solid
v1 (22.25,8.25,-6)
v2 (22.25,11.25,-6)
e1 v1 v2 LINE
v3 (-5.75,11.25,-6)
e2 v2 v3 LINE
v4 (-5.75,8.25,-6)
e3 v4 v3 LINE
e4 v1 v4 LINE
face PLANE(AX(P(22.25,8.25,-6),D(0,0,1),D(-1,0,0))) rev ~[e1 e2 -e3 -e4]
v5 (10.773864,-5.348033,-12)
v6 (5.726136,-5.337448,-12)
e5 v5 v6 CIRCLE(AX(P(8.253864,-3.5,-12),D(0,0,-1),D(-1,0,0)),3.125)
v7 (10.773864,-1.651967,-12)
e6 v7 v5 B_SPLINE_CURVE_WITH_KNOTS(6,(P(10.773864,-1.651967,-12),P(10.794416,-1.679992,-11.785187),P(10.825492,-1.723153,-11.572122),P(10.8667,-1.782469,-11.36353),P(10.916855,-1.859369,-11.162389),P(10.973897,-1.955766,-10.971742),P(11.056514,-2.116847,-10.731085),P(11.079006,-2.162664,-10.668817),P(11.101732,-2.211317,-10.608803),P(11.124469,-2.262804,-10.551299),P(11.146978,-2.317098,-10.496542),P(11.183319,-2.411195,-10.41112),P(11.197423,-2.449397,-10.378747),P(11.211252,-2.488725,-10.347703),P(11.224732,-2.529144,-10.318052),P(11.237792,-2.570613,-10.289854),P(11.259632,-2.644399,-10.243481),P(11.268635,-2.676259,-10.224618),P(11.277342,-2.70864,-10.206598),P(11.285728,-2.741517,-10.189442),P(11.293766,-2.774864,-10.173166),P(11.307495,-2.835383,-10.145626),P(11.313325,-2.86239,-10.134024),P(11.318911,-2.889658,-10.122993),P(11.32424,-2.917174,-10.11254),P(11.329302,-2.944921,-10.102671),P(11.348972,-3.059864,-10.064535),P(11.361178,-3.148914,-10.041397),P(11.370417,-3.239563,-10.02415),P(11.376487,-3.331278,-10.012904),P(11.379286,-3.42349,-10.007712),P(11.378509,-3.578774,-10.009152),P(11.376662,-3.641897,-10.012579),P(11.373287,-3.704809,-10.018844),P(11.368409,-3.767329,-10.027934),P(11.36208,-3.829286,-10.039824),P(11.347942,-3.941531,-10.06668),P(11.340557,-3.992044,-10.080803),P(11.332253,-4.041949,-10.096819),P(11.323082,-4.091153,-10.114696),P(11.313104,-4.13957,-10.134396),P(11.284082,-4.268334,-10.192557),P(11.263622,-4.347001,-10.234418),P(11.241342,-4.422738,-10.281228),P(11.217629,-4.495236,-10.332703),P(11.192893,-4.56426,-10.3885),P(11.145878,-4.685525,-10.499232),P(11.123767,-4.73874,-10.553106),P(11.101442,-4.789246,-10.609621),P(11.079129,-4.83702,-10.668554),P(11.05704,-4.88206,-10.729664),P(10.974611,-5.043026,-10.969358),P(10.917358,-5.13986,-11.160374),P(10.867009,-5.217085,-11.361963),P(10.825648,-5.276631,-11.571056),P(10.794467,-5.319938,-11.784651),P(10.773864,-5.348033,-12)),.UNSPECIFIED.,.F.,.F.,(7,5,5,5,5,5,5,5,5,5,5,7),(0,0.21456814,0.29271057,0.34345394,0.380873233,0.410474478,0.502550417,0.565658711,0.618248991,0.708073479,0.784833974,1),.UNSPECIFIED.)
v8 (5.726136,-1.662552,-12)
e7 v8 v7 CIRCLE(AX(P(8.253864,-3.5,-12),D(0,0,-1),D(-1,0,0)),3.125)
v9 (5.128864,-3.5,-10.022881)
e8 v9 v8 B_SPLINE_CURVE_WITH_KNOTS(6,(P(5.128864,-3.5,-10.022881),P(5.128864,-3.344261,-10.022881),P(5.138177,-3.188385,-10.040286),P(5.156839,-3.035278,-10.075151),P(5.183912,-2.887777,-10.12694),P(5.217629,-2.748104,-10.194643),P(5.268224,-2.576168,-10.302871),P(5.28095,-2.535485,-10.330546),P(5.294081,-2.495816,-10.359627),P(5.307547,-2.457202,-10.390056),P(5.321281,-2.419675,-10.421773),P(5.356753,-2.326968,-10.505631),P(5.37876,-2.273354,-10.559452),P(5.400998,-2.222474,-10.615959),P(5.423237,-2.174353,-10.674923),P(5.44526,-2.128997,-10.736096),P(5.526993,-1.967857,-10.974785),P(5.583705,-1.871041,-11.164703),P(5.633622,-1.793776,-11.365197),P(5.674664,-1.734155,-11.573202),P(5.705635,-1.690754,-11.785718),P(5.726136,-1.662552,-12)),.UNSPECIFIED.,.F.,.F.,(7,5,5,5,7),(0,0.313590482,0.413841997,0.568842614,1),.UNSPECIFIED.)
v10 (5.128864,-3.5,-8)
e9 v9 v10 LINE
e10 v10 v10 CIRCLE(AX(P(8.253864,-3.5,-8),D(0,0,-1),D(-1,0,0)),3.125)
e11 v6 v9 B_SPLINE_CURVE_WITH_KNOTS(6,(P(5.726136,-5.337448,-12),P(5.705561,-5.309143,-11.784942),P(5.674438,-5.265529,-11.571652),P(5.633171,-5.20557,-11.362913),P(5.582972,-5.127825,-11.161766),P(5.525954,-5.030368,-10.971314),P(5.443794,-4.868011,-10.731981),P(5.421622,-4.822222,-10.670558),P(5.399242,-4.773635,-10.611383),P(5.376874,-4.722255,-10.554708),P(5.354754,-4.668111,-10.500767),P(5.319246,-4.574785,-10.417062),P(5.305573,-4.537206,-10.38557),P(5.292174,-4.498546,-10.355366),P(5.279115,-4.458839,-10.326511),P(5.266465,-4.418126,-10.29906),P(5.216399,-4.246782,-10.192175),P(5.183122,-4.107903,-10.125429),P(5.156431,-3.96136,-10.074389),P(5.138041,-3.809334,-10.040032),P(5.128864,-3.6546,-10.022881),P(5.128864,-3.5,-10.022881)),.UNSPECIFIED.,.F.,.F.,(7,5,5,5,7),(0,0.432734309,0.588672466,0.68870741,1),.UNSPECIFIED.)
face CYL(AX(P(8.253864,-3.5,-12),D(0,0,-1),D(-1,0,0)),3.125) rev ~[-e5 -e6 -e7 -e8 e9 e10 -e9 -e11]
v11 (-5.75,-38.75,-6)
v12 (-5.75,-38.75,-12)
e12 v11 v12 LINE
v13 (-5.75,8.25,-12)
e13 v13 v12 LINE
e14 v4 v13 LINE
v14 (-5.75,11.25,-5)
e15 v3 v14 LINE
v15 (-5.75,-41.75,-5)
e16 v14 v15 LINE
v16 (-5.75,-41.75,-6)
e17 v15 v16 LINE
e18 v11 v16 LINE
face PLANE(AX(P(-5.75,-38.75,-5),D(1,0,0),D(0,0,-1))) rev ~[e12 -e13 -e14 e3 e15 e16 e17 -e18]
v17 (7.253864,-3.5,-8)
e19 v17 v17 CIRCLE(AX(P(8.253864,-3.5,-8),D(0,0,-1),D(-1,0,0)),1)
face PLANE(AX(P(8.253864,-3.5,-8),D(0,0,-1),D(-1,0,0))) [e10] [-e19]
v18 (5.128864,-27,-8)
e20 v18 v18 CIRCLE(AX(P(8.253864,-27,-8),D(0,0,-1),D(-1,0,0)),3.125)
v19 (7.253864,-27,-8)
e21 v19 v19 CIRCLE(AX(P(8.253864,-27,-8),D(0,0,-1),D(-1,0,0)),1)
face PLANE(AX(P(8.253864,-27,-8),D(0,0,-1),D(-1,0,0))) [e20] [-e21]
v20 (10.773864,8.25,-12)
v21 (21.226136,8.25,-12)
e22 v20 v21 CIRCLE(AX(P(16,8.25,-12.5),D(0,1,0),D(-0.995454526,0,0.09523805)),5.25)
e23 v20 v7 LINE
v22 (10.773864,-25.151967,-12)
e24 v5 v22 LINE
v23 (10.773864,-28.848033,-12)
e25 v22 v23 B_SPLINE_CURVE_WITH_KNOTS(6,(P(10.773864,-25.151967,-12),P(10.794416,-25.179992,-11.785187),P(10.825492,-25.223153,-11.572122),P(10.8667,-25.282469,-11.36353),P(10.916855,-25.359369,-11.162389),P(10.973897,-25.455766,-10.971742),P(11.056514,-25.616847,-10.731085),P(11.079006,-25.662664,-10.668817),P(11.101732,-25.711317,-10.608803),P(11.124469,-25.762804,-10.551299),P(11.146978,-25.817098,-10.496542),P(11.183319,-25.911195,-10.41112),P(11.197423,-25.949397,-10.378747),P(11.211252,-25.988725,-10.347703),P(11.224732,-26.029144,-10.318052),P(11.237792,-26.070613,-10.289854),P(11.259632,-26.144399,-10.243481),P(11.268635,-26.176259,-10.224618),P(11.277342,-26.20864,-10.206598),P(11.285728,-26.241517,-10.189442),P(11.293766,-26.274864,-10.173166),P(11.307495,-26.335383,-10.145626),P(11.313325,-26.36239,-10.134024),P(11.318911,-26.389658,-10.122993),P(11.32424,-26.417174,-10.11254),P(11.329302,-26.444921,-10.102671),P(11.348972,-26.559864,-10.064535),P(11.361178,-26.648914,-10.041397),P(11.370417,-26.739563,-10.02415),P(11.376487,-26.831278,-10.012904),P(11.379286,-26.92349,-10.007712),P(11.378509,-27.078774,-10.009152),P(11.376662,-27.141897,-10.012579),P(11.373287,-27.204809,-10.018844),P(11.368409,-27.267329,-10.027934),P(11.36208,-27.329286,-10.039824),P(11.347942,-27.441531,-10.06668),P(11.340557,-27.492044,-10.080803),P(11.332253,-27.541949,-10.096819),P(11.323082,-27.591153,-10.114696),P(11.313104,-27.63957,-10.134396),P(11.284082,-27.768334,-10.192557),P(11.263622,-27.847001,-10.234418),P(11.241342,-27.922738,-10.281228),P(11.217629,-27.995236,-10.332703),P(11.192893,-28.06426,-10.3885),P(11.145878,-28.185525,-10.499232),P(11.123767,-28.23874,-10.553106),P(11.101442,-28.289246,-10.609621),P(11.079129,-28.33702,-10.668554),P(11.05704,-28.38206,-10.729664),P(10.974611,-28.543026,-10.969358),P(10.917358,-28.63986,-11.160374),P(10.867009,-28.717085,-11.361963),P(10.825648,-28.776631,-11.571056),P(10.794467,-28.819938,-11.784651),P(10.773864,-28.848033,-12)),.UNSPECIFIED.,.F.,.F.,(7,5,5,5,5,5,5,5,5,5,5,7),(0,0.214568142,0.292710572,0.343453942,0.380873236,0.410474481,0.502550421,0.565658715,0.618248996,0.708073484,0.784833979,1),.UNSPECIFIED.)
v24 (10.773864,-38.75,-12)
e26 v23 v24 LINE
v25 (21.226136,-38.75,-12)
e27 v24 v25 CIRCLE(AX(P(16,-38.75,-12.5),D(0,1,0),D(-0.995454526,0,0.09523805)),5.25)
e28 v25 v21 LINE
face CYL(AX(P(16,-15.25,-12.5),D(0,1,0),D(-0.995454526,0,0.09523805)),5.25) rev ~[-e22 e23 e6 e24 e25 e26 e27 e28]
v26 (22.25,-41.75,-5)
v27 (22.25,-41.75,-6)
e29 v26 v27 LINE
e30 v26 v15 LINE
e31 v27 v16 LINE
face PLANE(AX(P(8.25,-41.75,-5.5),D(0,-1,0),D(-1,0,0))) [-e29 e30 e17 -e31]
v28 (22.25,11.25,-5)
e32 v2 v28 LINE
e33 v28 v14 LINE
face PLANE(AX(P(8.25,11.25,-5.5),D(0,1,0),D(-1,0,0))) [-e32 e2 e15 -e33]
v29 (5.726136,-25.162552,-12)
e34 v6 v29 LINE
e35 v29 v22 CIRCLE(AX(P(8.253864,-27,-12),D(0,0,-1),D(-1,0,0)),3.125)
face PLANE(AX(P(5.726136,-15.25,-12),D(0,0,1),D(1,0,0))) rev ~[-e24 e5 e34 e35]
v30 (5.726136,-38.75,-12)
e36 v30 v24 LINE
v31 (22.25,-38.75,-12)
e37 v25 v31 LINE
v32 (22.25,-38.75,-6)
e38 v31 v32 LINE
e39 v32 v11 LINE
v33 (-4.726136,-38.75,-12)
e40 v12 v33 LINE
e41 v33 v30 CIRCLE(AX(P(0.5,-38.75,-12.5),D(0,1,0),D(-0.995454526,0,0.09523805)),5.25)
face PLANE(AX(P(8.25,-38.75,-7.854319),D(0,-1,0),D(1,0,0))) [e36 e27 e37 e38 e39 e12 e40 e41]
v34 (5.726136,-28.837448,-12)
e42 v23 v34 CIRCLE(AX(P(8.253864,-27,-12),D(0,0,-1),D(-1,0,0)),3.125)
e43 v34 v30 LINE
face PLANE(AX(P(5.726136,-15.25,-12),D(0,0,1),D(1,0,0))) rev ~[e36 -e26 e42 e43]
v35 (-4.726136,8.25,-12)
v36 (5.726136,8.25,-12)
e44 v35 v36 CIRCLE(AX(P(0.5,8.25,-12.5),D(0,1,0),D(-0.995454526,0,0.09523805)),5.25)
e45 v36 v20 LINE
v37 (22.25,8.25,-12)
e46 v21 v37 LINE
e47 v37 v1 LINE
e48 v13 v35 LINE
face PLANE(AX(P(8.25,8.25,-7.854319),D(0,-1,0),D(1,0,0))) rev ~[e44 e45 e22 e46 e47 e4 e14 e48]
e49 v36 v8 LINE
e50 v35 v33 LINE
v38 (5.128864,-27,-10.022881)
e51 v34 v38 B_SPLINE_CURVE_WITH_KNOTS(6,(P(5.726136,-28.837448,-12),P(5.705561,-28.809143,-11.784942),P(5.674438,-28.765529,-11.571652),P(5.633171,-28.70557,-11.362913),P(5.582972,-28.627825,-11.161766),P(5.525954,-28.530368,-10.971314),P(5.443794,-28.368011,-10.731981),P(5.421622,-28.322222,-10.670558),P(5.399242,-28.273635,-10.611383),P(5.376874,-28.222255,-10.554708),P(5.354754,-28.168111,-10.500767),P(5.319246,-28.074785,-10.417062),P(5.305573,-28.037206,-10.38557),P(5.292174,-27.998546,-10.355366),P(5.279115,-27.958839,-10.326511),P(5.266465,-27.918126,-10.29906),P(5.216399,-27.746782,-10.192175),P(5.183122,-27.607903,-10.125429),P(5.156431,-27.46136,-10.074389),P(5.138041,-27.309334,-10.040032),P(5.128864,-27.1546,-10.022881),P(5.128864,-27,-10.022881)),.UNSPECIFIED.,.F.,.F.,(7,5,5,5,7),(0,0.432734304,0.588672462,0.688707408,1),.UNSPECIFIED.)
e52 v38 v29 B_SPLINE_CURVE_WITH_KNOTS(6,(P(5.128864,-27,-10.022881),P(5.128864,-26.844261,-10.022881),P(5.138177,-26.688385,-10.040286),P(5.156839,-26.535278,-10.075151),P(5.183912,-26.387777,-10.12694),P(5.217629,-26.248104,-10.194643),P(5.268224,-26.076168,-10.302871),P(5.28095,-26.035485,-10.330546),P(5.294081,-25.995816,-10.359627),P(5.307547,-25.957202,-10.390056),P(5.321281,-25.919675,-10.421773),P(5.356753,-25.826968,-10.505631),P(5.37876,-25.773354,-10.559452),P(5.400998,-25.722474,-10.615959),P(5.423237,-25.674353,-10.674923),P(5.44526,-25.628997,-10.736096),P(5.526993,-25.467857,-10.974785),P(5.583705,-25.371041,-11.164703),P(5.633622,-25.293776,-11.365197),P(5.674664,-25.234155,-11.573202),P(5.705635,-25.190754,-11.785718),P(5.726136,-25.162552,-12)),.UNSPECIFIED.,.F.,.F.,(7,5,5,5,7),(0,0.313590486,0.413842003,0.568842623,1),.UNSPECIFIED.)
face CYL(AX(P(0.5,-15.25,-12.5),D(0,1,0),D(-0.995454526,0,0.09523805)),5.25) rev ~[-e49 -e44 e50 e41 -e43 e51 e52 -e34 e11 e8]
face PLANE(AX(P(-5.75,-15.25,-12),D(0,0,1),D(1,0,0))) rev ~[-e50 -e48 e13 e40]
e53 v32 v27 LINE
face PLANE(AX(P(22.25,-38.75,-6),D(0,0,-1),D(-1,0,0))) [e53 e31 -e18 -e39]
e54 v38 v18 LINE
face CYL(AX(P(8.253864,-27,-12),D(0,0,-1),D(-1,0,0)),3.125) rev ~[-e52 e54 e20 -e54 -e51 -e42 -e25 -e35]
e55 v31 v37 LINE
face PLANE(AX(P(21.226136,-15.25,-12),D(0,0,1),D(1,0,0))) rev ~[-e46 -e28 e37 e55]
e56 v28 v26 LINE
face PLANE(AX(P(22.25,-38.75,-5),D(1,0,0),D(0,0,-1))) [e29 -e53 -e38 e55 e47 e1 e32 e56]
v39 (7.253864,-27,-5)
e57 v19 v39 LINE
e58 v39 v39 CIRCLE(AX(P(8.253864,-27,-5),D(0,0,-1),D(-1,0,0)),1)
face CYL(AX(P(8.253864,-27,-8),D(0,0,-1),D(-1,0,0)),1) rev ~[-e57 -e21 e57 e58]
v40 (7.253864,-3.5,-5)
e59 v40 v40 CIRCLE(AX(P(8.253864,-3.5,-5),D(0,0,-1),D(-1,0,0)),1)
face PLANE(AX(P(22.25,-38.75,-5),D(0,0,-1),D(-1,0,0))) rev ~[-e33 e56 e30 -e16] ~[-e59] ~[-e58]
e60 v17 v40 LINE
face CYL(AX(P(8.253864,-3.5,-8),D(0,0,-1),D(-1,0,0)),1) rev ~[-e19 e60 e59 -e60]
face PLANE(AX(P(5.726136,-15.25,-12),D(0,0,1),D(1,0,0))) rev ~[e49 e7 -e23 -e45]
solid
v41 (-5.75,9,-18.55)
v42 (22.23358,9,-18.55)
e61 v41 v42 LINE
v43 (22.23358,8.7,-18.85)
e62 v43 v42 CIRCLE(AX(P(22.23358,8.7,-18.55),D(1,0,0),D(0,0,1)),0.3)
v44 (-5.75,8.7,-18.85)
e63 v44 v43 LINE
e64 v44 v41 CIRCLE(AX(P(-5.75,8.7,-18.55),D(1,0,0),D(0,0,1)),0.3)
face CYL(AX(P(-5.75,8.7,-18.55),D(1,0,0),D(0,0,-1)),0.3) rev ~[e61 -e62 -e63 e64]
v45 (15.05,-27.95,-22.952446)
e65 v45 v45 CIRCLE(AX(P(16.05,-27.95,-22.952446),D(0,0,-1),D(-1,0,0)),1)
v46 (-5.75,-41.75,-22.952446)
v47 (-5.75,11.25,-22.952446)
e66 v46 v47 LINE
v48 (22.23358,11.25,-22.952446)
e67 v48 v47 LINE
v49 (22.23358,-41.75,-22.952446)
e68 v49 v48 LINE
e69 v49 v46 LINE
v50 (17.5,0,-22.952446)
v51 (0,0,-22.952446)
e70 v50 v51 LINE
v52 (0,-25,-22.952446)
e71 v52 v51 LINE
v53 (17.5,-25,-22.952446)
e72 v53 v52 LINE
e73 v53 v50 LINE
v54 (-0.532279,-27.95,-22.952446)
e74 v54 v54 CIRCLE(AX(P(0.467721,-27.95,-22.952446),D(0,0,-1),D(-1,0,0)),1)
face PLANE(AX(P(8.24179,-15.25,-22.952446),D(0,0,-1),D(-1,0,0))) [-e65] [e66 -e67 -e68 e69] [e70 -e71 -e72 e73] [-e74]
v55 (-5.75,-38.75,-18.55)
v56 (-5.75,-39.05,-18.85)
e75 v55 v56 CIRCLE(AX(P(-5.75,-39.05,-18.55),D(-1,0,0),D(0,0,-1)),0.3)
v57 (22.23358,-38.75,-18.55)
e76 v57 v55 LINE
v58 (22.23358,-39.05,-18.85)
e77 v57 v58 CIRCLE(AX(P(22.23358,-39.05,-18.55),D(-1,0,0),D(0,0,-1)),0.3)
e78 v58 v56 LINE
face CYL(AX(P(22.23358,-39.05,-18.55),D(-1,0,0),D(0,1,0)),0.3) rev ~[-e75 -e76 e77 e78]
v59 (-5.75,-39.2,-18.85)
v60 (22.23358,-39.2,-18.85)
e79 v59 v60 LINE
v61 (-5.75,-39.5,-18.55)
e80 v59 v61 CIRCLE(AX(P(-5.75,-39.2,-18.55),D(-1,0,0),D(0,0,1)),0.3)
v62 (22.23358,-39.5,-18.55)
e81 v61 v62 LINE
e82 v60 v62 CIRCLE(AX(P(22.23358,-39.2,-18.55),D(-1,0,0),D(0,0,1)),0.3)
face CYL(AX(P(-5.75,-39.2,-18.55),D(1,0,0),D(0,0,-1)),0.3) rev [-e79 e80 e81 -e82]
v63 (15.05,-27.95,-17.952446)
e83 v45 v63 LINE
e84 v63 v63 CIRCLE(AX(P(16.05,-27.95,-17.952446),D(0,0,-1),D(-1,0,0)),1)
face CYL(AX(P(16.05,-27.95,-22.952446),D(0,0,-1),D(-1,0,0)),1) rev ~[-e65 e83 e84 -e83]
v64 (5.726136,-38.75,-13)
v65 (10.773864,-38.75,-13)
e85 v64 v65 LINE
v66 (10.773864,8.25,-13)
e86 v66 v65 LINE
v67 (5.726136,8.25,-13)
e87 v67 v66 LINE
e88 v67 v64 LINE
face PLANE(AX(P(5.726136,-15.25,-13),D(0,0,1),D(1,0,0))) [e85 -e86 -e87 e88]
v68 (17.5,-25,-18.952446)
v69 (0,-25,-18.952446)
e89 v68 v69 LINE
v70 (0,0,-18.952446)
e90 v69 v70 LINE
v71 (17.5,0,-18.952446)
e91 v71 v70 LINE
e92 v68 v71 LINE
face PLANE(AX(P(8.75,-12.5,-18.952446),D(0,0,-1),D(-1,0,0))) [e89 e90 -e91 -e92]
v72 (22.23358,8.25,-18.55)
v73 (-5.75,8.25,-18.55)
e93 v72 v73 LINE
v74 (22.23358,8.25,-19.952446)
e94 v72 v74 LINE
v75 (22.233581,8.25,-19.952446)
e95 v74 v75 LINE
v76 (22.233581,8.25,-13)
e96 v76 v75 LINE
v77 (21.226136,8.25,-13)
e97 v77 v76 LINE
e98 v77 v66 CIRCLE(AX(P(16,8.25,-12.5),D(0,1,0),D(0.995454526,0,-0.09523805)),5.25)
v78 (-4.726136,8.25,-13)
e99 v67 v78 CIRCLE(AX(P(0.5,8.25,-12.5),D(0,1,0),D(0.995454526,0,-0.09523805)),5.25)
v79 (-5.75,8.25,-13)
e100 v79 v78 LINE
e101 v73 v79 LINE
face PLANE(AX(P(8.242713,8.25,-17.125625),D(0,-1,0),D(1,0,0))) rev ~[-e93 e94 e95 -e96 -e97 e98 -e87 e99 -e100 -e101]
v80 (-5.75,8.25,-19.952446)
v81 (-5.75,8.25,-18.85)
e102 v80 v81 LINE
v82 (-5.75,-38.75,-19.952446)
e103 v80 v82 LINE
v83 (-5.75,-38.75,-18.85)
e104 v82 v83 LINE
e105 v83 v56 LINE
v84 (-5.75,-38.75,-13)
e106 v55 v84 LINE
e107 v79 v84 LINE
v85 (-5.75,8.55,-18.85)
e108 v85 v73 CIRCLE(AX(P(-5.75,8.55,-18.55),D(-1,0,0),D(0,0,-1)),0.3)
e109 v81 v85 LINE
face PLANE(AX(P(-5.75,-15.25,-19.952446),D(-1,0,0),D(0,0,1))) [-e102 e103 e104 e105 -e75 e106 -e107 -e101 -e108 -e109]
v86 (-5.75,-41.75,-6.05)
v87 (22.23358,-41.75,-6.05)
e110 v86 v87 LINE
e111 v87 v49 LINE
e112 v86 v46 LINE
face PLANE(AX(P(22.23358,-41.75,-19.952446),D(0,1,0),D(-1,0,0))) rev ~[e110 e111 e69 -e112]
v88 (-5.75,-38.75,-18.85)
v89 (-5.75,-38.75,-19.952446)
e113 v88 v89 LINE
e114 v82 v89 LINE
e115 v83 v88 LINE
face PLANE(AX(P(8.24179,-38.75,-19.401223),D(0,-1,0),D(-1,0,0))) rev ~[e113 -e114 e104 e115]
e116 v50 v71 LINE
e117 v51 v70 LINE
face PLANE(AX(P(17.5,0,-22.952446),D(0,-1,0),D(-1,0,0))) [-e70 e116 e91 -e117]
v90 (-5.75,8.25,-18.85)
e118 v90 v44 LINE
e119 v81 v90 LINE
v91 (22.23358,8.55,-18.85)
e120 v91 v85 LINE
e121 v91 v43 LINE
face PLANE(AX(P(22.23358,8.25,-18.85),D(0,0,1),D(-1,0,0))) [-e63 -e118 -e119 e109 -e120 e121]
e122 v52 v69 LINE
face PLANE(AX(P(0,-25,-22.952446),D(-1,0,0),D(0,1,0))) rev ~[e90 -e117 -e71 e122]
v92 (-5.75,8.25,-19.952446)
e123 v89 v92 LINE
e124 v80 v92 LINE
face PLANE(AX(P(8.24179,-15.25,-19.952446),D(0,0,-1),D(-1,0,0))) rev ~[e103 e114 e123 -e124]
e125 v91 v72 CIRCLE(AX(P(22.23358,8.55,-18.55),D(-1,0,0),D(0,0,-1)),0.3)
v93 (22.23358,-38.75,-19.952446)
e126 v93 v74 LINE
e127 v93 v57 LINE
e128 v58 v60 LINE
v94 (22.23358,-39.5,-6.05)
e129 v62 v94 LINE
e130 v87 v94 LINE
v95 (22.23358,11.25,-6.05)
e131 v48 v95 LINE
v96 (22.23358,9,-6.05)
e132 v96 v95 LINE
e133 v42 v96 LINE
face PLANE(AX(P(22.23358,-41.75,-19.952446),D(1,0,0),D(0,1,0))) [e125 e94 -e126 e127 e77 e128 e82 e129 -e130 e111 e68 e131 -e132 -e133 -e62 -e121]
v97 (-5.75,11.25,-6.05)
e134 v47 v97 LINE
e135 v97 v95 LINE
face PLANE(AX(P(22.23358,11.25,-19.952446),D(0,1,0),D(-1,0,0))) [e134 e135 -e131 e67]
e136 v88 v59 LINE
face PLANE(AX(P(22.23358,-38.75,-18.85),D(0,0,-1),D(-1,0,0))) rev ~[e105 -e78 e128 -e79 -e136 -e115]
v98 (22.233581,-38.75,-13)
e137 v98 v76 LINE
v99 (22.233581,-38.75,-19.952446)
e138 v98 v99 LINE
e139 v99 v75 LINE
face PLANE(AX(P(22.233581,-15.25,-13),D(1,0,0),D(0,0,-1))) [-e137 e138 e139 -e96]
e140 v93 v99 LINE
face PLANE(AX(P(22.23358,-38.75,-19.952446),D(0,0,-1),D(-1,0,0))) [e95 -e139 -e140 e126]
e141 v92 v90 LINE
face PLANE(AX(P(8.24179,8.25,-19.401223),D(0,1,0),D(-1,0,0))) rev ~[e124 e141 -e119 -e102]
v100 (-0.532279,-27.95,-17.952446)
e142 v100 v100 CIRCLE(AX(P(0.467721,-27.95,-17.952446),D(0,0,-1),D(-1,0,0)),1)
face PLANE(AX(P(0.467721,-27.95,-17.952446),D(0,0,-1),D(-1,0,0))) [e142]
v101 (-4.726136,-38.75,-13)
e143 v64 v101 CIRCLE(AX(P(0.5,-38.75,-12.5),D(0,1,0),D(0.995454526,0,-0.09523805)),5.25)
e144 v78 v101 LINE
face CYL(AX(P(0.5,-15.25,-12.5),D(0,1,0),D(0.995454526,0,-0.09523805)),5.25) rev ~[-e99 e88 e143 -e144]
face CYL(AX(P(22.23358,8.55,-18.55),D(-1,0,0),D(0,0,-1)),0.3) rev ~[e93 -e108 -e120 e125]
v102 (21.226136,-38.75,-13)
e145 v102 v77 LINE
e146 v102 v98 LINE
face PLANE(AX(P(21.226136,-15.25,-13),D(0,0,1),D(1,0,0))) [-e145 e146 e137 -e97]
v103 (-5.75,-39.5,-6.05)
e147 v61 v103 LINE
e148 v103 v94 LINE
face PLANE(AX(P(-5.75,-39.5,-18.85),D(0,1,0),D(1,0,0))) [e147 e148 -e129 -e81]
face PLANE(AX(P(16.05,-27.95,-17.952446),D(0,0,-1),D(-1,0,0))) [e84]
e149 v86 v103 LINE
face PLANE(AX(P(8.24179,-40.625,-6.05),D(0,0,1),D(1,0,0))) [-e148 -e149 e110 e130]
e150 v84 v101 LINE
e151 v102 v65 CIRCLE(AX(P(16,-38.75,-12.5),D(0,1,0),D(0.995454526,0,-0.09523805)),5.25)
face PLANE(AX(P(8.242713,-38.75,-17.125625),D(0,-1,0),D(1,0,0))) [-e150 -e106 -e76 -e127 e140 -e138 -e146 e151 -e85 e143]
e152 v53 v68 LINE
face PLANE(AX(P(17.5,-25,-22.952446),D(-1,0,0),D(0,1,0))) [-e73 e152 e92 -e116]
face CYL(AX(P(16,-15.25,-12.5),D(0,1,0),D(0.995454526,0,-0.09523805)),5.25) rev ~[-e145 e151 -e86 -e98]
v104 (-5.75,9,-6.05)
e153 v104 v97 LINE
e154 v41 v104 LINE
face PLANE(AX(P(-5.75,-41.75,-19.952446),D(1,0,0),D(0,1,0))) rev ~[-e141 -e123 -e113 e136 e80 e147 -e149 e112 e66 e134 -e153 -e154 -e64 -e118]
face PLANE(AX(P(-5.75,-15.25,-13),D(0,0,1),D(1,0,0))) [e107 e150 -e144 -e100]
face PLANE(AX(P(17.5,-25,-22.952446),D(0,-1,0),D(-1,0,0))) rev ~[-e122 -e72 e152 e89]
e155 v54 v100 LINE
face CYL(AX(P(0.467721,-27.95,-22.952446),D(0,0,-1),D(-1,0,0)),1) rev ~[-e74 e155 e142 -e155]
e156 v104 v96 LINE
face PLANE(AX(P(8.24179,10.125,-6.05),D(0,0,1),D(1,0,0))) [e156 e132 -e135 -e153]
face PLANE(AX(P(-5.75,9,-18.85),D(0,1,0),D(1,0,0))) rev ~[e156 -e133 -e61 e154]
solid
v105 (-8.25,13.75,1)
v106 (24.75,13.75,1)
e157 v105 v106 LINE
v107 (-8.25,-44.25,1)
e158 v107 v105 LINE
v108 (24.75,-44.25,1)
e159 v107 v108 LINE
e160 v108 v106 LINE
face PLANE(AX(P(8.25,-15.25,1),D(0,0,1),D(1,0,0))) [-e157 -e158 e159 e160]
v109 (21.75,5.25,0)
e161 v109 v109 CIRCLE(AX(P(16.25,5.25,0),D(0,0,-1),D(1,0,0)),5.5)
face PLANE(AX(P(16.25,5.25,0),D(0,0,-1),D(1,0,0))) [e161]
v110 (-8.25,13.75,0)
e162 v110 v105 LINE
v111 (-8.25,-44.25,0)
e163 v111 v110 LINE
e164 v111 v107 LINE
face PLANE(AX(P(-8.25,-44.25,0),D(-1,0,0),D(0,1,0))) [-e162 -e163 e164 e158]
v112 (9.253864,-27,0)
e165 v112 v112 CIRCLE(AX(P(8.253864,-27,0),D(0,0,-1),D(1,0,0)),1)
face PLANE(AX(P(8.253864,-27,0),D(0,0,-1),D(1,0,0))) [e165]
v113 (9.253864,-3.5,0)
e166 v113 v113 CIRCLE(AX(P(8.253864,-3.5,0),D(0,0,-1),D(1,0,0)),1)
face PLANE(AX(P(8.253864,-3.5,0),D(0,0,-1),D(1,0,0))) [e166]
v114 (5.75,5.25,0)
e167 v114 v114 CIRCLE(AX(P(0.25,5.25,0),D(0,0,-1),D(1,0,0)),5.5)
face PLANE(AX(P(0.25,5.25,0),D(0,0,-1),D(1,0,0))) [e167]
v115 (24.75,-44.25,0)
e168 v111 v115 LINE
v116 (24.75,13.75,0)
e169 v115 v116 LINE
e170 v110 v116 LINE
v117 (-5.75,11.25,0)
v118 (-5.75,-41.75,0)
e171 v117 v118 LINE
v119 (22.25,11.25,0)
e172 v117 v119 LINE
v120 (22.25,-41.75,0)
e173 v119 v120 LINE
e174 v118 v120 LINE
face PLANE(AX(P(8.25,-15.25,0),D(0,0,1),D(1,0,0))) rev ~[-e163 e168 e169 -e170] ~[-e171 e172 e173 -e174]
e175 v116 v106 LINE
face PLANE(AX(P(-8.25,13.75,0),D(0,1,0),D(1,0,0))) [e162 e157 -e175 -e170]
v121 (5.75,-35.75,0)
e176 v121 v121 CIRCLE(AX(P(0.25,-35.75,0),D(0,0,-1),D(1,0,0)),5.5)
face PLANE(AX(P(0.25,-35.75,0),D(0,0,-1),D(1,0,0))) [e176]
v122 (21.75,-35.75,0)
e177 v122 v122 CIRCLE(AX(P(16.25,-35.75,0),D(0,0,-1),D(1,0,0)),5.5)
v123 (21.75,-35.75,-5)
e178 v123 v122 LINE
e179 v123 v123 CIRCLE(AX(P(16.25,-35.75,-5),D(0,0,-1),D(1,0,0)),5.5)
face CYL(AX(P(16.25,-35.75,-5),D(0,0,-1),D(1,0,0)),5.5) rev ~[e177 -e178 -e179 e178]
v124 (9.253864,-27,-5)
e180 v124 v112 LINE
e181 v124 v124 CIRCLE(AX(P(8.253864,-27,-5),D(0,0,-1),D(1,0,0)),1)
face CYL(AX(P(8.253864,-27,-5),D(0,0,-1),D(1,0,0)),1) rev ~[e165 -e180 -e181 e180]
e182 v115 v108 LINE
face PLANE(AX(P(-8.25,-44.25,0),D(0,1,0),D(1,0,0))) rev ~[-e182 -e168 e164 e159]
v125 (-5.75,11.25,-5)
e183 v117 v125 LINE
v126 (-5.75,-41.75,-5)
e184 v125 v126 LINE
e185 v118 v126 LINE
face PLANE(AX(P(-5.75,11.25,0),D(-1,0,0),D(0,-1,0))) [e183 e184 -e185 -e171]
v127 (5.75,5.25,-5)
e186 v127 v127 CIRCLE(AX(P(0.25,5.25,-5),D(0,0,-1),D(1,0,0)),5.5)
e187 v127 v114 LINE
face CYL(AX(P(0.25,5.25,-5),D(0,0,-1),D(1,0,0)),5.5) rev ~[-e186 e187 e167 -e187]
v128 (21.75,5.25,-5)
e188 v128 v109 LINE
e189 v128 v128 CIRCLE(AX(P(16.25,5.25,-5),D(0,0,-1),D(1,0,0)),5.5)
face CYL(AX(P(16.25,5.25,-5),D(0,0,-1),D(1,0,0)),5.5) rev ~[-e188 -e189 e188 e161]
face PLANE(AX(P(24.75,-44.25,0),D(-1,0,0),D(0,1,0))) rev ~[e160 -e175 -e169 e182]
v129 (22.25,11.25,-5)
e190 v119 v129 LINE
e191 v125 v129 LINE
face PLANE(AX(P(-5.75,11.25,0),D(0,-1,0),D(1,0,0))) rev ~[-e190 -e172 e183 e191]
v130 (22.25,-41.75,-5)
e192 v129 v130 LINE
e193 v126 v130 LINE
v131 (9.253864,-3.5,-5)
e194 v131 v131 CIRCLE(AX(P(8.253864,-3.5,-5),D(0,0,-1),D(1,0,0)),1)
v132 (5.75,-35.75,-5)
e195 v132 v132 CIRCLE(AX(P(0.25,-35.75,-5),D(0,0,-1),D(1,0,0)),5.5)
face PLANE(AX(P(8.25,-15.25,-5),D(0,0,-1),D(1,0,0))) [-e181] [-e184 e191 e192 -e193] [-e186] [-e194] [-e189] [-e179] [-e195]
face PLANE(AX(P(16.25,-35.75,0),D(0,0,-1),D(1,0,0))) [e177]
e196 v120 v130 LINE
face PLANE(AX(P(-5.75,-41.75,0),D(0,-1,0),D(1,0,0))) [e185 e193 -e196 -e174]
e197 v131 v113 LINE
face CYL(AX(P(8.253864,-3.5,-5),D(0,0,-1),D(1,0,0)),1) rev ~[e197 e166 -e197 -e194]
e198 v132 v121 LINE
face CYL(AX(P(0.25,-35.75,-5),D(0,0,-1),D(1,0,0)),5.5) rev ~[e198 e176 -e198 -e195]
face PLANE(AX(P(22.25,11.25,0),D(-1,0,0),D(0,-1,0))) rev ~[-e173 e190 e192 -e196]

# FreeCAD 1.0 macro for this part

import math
import FreeCAD as App
import Part
import Sketcher

V = App.Vector
Q = App.Units.Quantity


def edges_at(feature, points):
    """Names of the edges that pass closest to the given points."""
    edges = feature.Shape.Edges
    near = lambda p: min(range(len(edges)), key=lambda i: edges[i].distToShape(Part.Vertex(*p))[0])
    return sorted({f"Edge{near(p) + 1}" for p in points})


def add_polygon(sketch, points):
    """Adds a closed chain of lines whose ends are joined by coincident constraints."""
    first, n = sketch.GeometryCount, len(points)
    for a, b in zip(points, points[1:] + points[:1]):
        sketch.addGeometry(Part.LineSegment(App.Vector(*a, 0), App.Vector(*b, 0)), False)
    for i in range(n):
        sketch.addConstraint(Sketcher.Constraint("Coincident", first + i, 2, first + (i + 1) % n, 1))

doc = App.newDocument("Part")
body = doc.addObject("PartDesign::Body", "Body")

# Sketch on XY plane
sketch1 = body.newObject("Sketcher::SketchObject", "Sketch")
sketch1.AttachmentSupport = (doc.getObject("XY_Plane"), [""])
sketch1.MapMode = "FlatFace"
add_polygon(sketch1, [(-8.25, 13.75), (-8.25, -44.25), (24.75, -44.25), (24.75, 13.75)])  # lines 0-3
sketch1.addConstraint(Sketcher.Constraint("Vertical", 0))
sketch1.addConstraint(Sketcher.Constraint("Horizontal", 1))
sketch1.addConstraint(Sketcher.Constraint("Vertical", 2))
sketch1.addConstraint(Sketcher.Constraint("Horizontal", 3))
sketch1.addConstraint(Sketcher.Constraint("DistanceX", 1, 1, 1, 2, Q("33 mm")))
sketch1.addConstraint(Sketcher.Constraint("DistanceY", 0, 2, 0, 1, Q("58 mm")))
sketch1.addConstraint(Sketcher.Constraint("DistanceX", 0, 2, -1, 1, Q("8.25 mm")))
sketch1.addConstraint(Sketcher.Constraint("DistanceY", 0, 2, -1, 1, Q("44.25 mm")))
pad1 = body.newObject("PartDesign::Pad", "Pad")
pad1.Profile = sketch1
pad1.Length = 1

# Sketch on XY plane
sketch2 = body.newObject("Sketcher::SketchObject", "Sketch001")
sketch2.AttachmentSupport = (doc.getObject("XY_Plane"), [""])
sketch2.MapMode = "FlatFace"
add_polygon(sketch2, [(-5.75, -41.75), (-5.75, 11.25), (22.25, 11.25), (22.25, -41.75)])  # lines 0-3
sketch2.addConstraint(Sketcher.Constraint("Vertical", 0))
sketch2.addConstraint(Sketcher.Constraint("Horizontal", 1))
sketch2.addConstraint(Sketcher.Constraint("Vertical", 2))
sketch2.addConstraint(Sketcher.Constraint("Horizontal", 3))
sketch2.addConstraint(Sketcher.Constraint("DistanceX", 1, 1, 1, 2, Q("28 mm")))
sketch2.addConstraint(Sketcher.Constraint("DistanceY", 0, 1, 0, 2, Q("53 mm")))
sketch2.addConstraint(Sketcher.Constraint("DistanceX", 0, 2, -1, 1, Q("5.75 mm")))
sketch2.addConstraint(Sketcher.Constraint("DistanceY", -1, 1, 0, 2, Q("11.25 mm")))
pad2 = body.newObject("PartDesign::Pad", "Pad001")
pad2.Profile = sketch2
pad2.Length = 5
pad2.Reversed = True

# Sketch on XY plane
sketch3 = body.newObject("Sketcher::SketchObject", "Sketch002")
sketch3.AttachmentSupport = (doc.getObject("XY_Plane"), [""])
sketch3.MapMode = "FlatFace"
sketch3.AttachmentOffset = App.Placement(V(0, 0, -5), App.Rotation())
sketch3.addGeometry(Part.Circle(V(0.25, -35.75, 0), V(0, 0, 1), 5.5), False)
sketch3.addGeometry(Part.Circle(V(16.25, -35.75, 0), V(0, 0, 1), 5.5), False)
sketch3.addGeometry(Part.Circle(V(0.25, 5.25, 0), V(0, 0, 1), 5.5), False)
sketch3.addGeometry(Part.Circle(V(16.25, 5.25, 0), V(0, 0, 1), 5.5), False)
sketch3.addConstraint(Sketcher.Constraint("Equal", 0, 1))
sketch3.addConstraint(Sketcher.Constraint("Equal", 1, 2))
sketch3.addConstraint(Sketcher.Constraint("Equal", 2, 3))
sketch3.addConstraint(Sketcher.Constraint("Horizontal", 0, 3, 1, 3))
sketch3.addConstraint(Sketcher.Constraint("Horizontal", 2, 3, 3, 3))
sketch3.addConstraint(Sketcher.Constraint("Vertical", 0, 3, 2, 3))
sketch3.addConstraint(Sketcher.Constraint("Vertical", 1, 3, 3, 3))
sketch3.addConstraint(Sketcher.Constraint("Diameter", 0, Q("11 mm")))
sketch3.addConstraint(Sketcher.Constraint("DistanceX", 0, 3, 1, 3, Q("16 mm")))
sketch3.addConstraint(Sketcher.Constraint("DistanceY", 0, 3, 2, 3, Q("41 mm")))
sketch3.addConstraint(Sketcher.Constraint("DistanceX", -1, 1, 0, 3, Q("0.25 mm")))
sketch3.addConstraint(Sketcher.Constraint("DistanceY", 0, 3, -1, 1, Q("35.75 mm")))
pocket1 = body.newObject("PartDesign::Pocket", "Pocket")
pocket1.Profile = sketch3
pocket1.Length = 5
pocket1.Reversed = True

# Sketch on XY plane
sketch4 = body.newObject("Sketcher::SketchObject", "Sketch003")
sketch4.AttachmentSupport = (doc.getObject("XY_Plane"), [""])
sketch4.MapMode = "FlatFace"
sketch4.AttachmentOffset = App.Placement(V(0, 0, -5), App.Rotation())
sketch4.addGeometry(Part.Circle(V(8.253864, -3.5, 0), V(0, 0, 1), 1), False)
sketch4.addGeometry(Part.Circle(V(8.253864, -27, 0), V(0, 0, 1), 1), False)
sketch4.addConstraint(Sketcher.Constraint("Equal", 0, 1))
sketch4.addConstraint(Sketcher.Constraint("Vertical", 0, 3, 1, 3))
sketch4.addConstraint(Sketcher.Constraint("Diameter", 0, Q("2 mm")))
sketch4.addConstraint(Sketcher.Constraint("DistanceY", 1, 3, -1, 1, Q("27 mm")))
sketch4.addConstraint(Sketcher.Constraint("DistanceY", 0, 3, -1, 1, Q("3.5 mm")))
sketch4.addConstraint(Sketcher.Constraint("DistanceX", -1, 1, 0, 3, Q("8.253864 mm")))
pocket2 = body.newObject("PartDesign::Pocket", "Pocket001")
pocket2.Profile = sketch4
pocket2.Length = 5
pocket2.Reversed = True
body2 = doc.addObject("PartDesign::Body", "Body001")

# Sketch on XZ plane
sketch5 = body2.newObject("Sketcher::SketchObject", "Sketch004")
sketch5.AttachmentSupport = (doc.getObject("XZ_Plane001"), [""])
sketch5.MapMode = "FlatFace"
sketch5.AttachmentOffset = App.Placement(V(0, 0, 15.25), App.Rotation())
sketch5.addGeometry(Part.LineSegment(V(-5.75, -5, 0), V(22.25, -5, 0)), False)
sketch5.addGeometry(Part.LineSegment(V(22.25, -5, 0), V(22.25, -12, 0)), False)
sketch5.addGeometry(Part.LineSegment(V(22.25, -12, 0), V(21.226136, -12, 0)), False)
sketch5.addGeometry(Part.ArcOfCircle(Part.Circle(V(16, -12.5, 0), V(0, 0, 1), 5.25), math.radians(5.465021), math.radians(174.534979)), False)
sketch5.addGeometry(Part.LineSegment(V(10.773864, -12, 0), V(5.726136, -12, 0)), False)
sketch5.addGeometry(Part.ArcOfCircle(Part.Circle(V(0.5, -12.5, 0), V(0, 0, 1), 5.25), math.radians(5.465021), math.radians(174.534979)), False)
sketch5.addGeometry(Part.LineSegment(V(-4.726136, -12, 0), V(-5.75, -12, 0)), False)
sketch5.addGeometry(Part.LineSegment(V(-5.75, -12, 0), V(-5.75, -5, 0)), False)
sketch5.addConstraint(Sketcher.Constraint("Coincident", 0, 2, 1, 1))
sketch5.addConstraint(Sketcher.Constraint("Coincident", 1, 2, 2, 1))
sketch5.addConstraint(Sketcher.Constraint("Coincident", 2, 2, 3, 1))
sketch5.addConstraint(Sketcher.Constraint("Coincident", 3, 2, 4, 1))
sketch5.addConstraint(Sketcher.Constraint("Coincident", 4, 2, 5, 1))
sketch5.addConstraint(Sketcher.Constraint("Coincident", 5, 2, 6, 1))
sketch5.addConstraint(Sketcher.Constraint("Coincident", 6, 2, 7, 1))
sketch5.addConstraint(Sketcher.Constraint("Coincident", 7, 2, 0, 1))
sketch5.addConstraint(Sketcher.Constraint("Horizontal", 0))
sketch5.addConstraint(Sketcher.Constraint("Vertical", 1))
sketch5.addConstraint(Sketcher.Constraint("Horizontal", 2))
sketch5.addConstraint(Sketcher.Constraint("Horizontal", 4))
sketch5.addConstraint(Sketcher.Constraint("Horizontal", 6))
sketch5.addConstraint(Sketcher.Constraint("Vertical", 7))
sketch5.addConstraint(Sketcher.Constraint("Equal", 3, 5))
sketch5.addConstraint(Sketcher.Constraint("Horizontal", 3, 3, 5, 3))
sketch5.addConstraint(Sketcher.Constraint("Horizontal", 2, 2, 3, 2))
sketch5.addConstraint(Sketcher.Constraint("Horizontal", 4, 2, 5, 2))
sketch5.addConstraint(Sketcher.Constraint("Equal", 2, 6))
sketch5.addConstraint(Sketcher.Constraint("DistanceX", 0, 1, 0, 2, Q("28 mm")))
sketch5.addConstraint(Sketcher.Constraint("DistanceY", 1, 2, 1, 1, Q("7 mm")))
sketch5.addConstraint(Sketcher.Constraint("Radius", 3, Q("5.25 mm")))
sketch5.addConstraint(Sketcher.Constraint("DistanceX", -1, 1, 3, 3, Q("16 mm")))
sketch5.addConstraint(Sketcher.Constraint("DistanceY", 0, 2, -1, 1, Q("5 mm")))
sketch5.addConstraint(Sketcher.Constraint("DistanceY", 3, 3, -1, 1, Q("12.5 mm")))
sketch5.addConstraint(Sketcher.Constraint("DistanceX", -1, 1, 5, 3, Q("0.5 mm")))
pad3 = body2.newObject("PartDesign::Pad", "Pad002")
pad3.Profile = sketch5
pad3.Length = 47
pad3.Midplane = True

# Sketch on XZ plane
sketch6 = body2.newObject("Sketcher::SketchObject", "Sketch005")
sketch6.AttachmentSupport = (doc.getObject("XZ_Plane001"), [""])
sketch6.MapMode = "FlatFace"
sketch6.AttachmentOffset = App.Placement(V(0, 0, -8.25), App.Rotation())
add_polygon(sketch6, [(22.25, -5), (22.25, -6), (-5.75, -6), (-5.75, -5)])  # lines 0-3
sketch6.addConstraint(Sketcher.Constraint("Vertical", 0))
sketch6.addConstraint(Sketcher.Constraint("Horizontal", 1))
sketch6.addConstraint(Sketcher.Constraint("Vertical", 2))
sketch6.addConstraint(Sketcher.Constraint("Horizontal", 3))
sketch6.addConstraint(Sketcher.Constraint("DistanceX", 1, 2, 1, 1, Q("28 mm")))
sketch6.addConstraint(Sketcher.Constraint("DistanceY", 0, 2, 0, 1, Q("1 mm")))
sketch6.addConstraint(Sketcher.Constraint("DistanceY", 0, 2, -1, 1, Q("6 mm")))
sketch6.addConstraint(Sketcher.Constraint("DistanceX", -1, 1, 0, 2, Q("22.25 mm")))
pad4 = body2.newObject("PartDesign::Pad", "Pad003")
pad4.Profile = sketch6
pad4.Length = 3
pad4.Reversed = True

# Sketch on XZ plane
sketch7 = body2.newObject("Sketcher::SketchObject", "Sketch006")
sketch7.AttachmentSupport = (doc.getObject("XZ_Plane001"), [""])
sketch7.MapMode = "FlatFace"
sketch7.AttachmentOffset = App.Placement(V(0, 0, 38.75), App.Rotation())
add_polygon(sketch7, [(22.25, -6), (22.25, -5), (-5.75, -5), (-5.75, -6)])  # lines 0-3
sketch7.addConstraint(Sketcher.Constraint("Vertical", 0))
sketch7.addConstraint(Sketcher.Constraint("Horizontal", 1))
sketch7.addConstraint(Sketcher.Constraint("Vertical", 2))
sketch7.addConstraint(Sketcher.Constraint("Horizontal", 3))
sketch7.addConstraint(Sketcher.Constraint("DistanceX", 1, 2, 1, 1, Q("28 mm")))
sketch7.addConstraint(Sketcher.Constraint("DistanceY", 0, 1, 0, 2, Q("1 mm")))
sketch7.addConstraint(Sketcher.Constraint("DistanceY", 0, 2, -1, 1, Q("5 mm")))
sketch7.addConstraint(Sketcher.Constraint("DistanceX", -1, 1, 0, 2, Q("22.25 mm")))
pad5 = body2.newObject("PartDesign::Pad", "Pad004")
pad5.Profile = sketch7
pad5.Length = 3

# Sketch on XY plane
sketch8 = body2.newObject("Sketcher::SketchObject", "Sketch007")
sketch8.AttachmentSupport = (doc.getObject("XY_Plane001"), [""])
sketch8.MapMode = "FlatFace"
sketch8.AttachmentOffset = App.Placement(V(0, 0, -12), App.Rotation())
sketch8.addGeometry(Part.Circle(V(8.253864, -3.5, 0), V(0, 0, 1), 3.125), False)
sketch8.addGeometry(Part.Circle(V(8.253864, -27, 0), V(0, 0, 1), 3.125), False)
sketch8.addConstraint(Sketcher.Constraint("Equal", 0, 1))
sketch8.addConstraint(Sketcher.Constraint("Vertical", 0, 3, 1, 3))
sketch8.addConstraint(Sketcher.Constraint("Diameter", 0, Q("6.25 mm")))
sketch8.addConstraint(Sketcher.Constraint("DistanceY", 1, 3, -1, 1, Q("27 mm")))
sketch8.addConstraint(Sketcher.Constraint("DistanceY", 0, 3, -1, 1, Q("3.5 mm")))
sketch8.addConstraint(Sketcher.Constraint("DistanceX", -1, 1, 0, 3, Q("8.253864 mm")))
pocket3 = body2.newObject("PartDesign::Pocket", "Pocket002")
pocket3.Profile = sketch8
pocket3.Length = 4
pocket3.Reversed = True

# Sketch on XY plane
sketch9 = body2.newObject("Sketcher::SketchObject", "Sketch008")
sketch9.AttachmentSupport = (doc.getObject("XY_Plane001"), [""])
sketch9.MapMode = "FlatFace"
sketch9.AttachmentOffset = App.Placement(V(0, 0, -8), App.Rotation())
sketch9.addGeometry(Part.Circle(V(8.253864, -3.5, 0), V(0, 0, 1), 1), False)
sketch9.addGeometry(Part.Circle(V(8.253864, -27, 0), V(0, 0, 1), 1), False)
sketch9.addConstraint(Sketcher.Constraint("Equal", 0, 1))
sketch9.addConstraint(Sketcher.Constraint("Vertical", 0, 3, 1, 3))
sketch9.addConstraint(Sketcher.Constraint("Diameter", 0, Q("2 mm")))
sketch9.addConstraint(Sketcher.Constraint("DistanceY", 1, 3, -1, 1, Q("27 mm")))
sketch9.addConstraint(Sketcher.Constraint("DistanceY", 0, 3, -1, 1, Q("3.5 mm")))
sketch9.addConstraint(Sketcher.Constraint("DistanceX", -1, 1, 0, 3, Q("8.253864 mm")))
pocket4 = body2.newObject("PartDesign::Pocket", "Pocket003")
pocket4.Profile = sketch9
pocket4.Length = 5
pocket4.Reversed = True
body3 = doc.addObject("PartDesign::Body", "Body002")

# Sketch on XZ plane
sketch10 = body3.newObject("Sketcher::SketchObject", "Sketch009")
sketch10.AttachmentSupport = (doc.getObject("XZ_Plane002"), [""])
sketch10.MapMode = "FlatFace"
sketch10.AttachmentOffset = App.Placement(V(0, 0, 15.25), App.Rotation())
sketch10.addGeometry(Part.ArcOfCircle(Part.Circle(V(16, -12.5, 0), V(0, 0, 1), 5.25), math.radians(-174.534979), math.radians(-5.465021)), False)
sketch10.addGeometry(Part.LineSegment(V(21.226136, -13, 0), V(22.233581, -13, 0)), False)
sketch10.addGeometry(Part.LineSegment(V(22.233581, -13, 0), V(22.233581, -19.952446, 0)), False)
sketch10.addGeometry(Part.LineSegment(V(22.233581, -19.952446, 0), V(-5.75, -19.952446, 0)), False)
sketch10.addGeometry(Part.LineSegment(V(-5.75, -19.952446, 0), V(-5.75, -13, 0)), False)
sketch10.addGeometry(Part.LineSegment(V(-5.75, -13, 0), V(-4.726136, -13, 0)), False)
sketch10.addGeometry(Part.ArcOfCircle(Part.Circle(V(0.5, -12.5, 0), V(0, 0, 1), 5.25), math.radians(-174.534979), math.radians(-5.465021)), False)
sketch10.addGeometry(Part.LineSegment(V(5.726136, -13, 0), V(10.773864, -13, 0)), False)
sketch10.addConstraint(Sketcher.Constraint("Coincident", 0, 2, 1, 1))
sketch10.addConstraint(Sketcher.Constraint("Coincident", 1, 2, 2, 1))
sketch10.addConstraint(Sketcher.Constraint("Coincident", 2, 2, 3, 1))
sketch10.addConstraint(Sketcher.Constraint("Coincident", 3, 2, 4, 1))
sketch10.addConstraint(Sketcher.Constraint("Coincident", 4, 2, 5, 1))
sketch10.addConstraint(Sketcher.Constraint("Coincident", 5, 2, 6, 1))
sketch10.addConstraint(Sketcher.Constraint("Coincident", 6, 2, 7, 1))
sketch10.addConstraint(Sketcher.Constraint("Coincident", 7, 2, 0, 1))
sketch10.addConstraint(Sketcher.Constraint("Horizontal", 1))
sketch10.addConstraint(Sketcher.Constraint("Vertical", 2))
sketch10.addConstraint(Sketcher.Constraint("Horizontal", 3))
sketch10.addConstraint(Sketcher.Constraint("Vertical", 4))
sketch10.addConstraint(Sketcher.Constraint("Horizontal", 5))
sketch10.addConstraint(Sketcher.Constraint("Horizontal", 7))
sketch10.addConstraint(Sketcher.Constraint("Equal", 0, 6))
sketch10.addConstraint(Sketcher.Constraint("Horizontal", 0, 3, 6, 3))
sketch10.addConstraint(Sketcher.Constraint("Horizontal", 1, 2, 4, 2))
sketch10.addConstraint(Sketcher.Constraint("Horizontal", 5, 2, 6, 2))
sketch10.addConstraint(Sketcher.Constraint("Radius", 0, Q("5.25 mm")))
sketch10.addConstraint(Sketcher.Constraint("DistanceX", -1, 1, 0, 3, Q("16 mm")))
sketch10.addConstraint(Sketcher.Constraint("DistanceY", 0, 2, -1, 1, Q("13 mm")))
sketch10.addConstraint(Sketcher.Constraint("DistanceY", 0, 3, -1, 1, Q("12.5 mm")))
sketch10.addConstraint(Sketcher.Constraint("DistanceX", -1, 1, 6, 3, Q("0.5 mm")))
sketch10.addConstraint(Sketcher.Constraint("DistanceX", 3, 2, -1, 1, Q("5.75 mm")))
sketch10.addConstraint(Sketcher.Constraint("DistanceX", 3, 2, 3, 1, Q("27.983581 mm")))
sketch10.addConstraint(Sketcher.Constraint("DistanceY", 2, 2, 2, 1, Q("6.952446 mm")))
pad6 = body3.newObject("PartDesign::Pad", "Pad005")
pad6.Profile = sketch10
pad6.Length = 47
pad6.Midplane = True

# Sketch on XZ plane
sketch11 = body3.newObject("Sketcher::SketchObject", "Sketch010")
sketch11.AttachmentSupport = (doc.getObject("XZ_Plane002"), [""])
sketch11.MapMode = "FlatFace"
sketch11.AttachmentOffset = App.Placement(V(0, 0, -8.25), App.Rotation())
add_polygon(sketch11, [(22.23358, -18.85), (22.23358, -19.952446), (-5.75, -19.952446), (-5.75, -18.85)])  # lines 0-3
sketch11.addConstraint(Sketcher.Constraint("Vertical", 0))
sketch11.addConstraint(Sketcher.Constraint("Horizontal", 1))
sketch11.addConstraint(Sketcher.Constraint("Vertical", 2))
sketch11.addConstraint(Sketcher.Constraint("Horizontal", 3))
sketch11.addConstraint(Sketcher.Constraint("DistanceX", 1, 2, -1, 1, Q("5.75 mm")))
sketch11.addConstraint(Sketcher.Constraint("DistanceY", 2, 2, -1, 1, Q("18.85 mm")))
sketch11.addConstraint(Sketcher.Constraint("DistanceX", 1, 2, 1, 1, Q("27.983581 mm")))
sketch11.addConstraint(Sketcher.Constraint("DistanceY", 0, 2, 0, 1, Q("1.102446 mm")))
pad7 = body3.newObject("PartDesign::Pad", "Pad006")
pad7.Profile = sketch11
pad7.Length = 3
pad7.Reversed = True

# Sketch on XY plane
sketch12 = body3.newObject("Sketcher::SketchObject", "Sketch011")
sketch12.AttachmentSupport = (doc.getObject("XY_Plane002"), [""])
sketch12.MapMode = "FlatFace"
sketch12.AttachmentOffset = App.Placement(V(0, 0, -18.85), App.Rotation())
add_polygon(sketch12, [(-5.75, 11.25), (-5.75, 9), (22.23358, 9), (22.23358, 11.25)])  # lines 0-3
sketch12.addConstraint(Sketcher.Constraint("Vertical", 0))
sketch12.addConstraint(Sketcher.Constraint("Horizontal", 1))
sketch12.addConstraint(Sketcher.Constraint("Vertical", 2))
sketch12.addConstraint(Sketcher.Constraint("Horizontal", 3))
sketch12.addConstraint(Sketcher.Constraint("DistanceY", -1, 1, 0, 2, Q("9 mm")))
sketch12.addConstraint(Sketcher.Constraint("DistanceY", 0, 2, 0, 1, Q("2.25 mm")))
sketch12.addConstraint(Sketcher.Constraint("DistanceX", 0, 2, -1, 1, Q("5.75 mm")))
sketch12.addConstraint(Sketcher.Constraint("DistanceX", 1, 1, 1, 2, Q("27.983581 mm")))
pad8 = body3.newObject("PartDesign::Pad", "Pad007")
pad8.Profile = sketch12
pad8.Length = 12.8
doc.recompute()

fillet = body3.newObject("PartDesign::Fillet", "Fillet")
fillet.Base = (pad8, edges_at(pad8, [(8.242, 8.25, -18.85), (8.242, 9, -18.85)]))
fillet.Radius = 0.3

# Sketch on XZ plane
sketch13 = body3.newObject("Sketcher::SketchObject", "Sketch012")
sketch13.AttachmentSupport = (doc.getObject("XZ_Plane002"), [""])
sketch13.MapMode = "FlatFace"
sketch13.AttachmentOffset = App.Placement(V(0, 0, 38.75), App.Rotation())
add_polygon(sketch13, [(22.23358, -19.952446), (22.23358, -18.85), (-5.75, -18.85), (-5.75, -19.952446)])  # lines 0-3
sketch13.addConstraint(Sketcher.Constraint("Vertical", 0))
sketch13.addConstraint(Sketcher.Constraint("Horizontal", 1))
sketch13.addConstraint(Sketcher.Constraint("Vertical", 2))
sketch13.addConstraint(Sketcher.Constraint("Horizontal", 3))
sketch13.addConstraint(Sketcher.Constraint("DistanceY", 0, 2, -1, 1, Q("18.85 mm")))
sketch13.addConstraint(Sketcher.Constraint("DistanceX", 1, 2, -1, 1, Q("5.75 mm")))
sketch13.addConstraint(Sketcher.Constraint("DistanceX", 1, 2, 1, 1, Q("27.983581 mm")))
sketch13.addConstraint(Sketcher.Constraint("DistanceY", 0, 1, 0, 2, Q("1.102446 mm")))
pad9 = body3.newObject("PartDesign::Pad", "Pad008")
pad9.Profile = sketch13
pad9.Length = 3

# Sketch on XY plane
sketch14 = body3.newObject("Sketcher::SketchObject", "Sketch013")
sketch14.AttachmentSupport = (doc.getObject("XY_Plane002"), [""])
sketch14.MapMode = "FlatFace"
sketch14.AttachmentOffset = App.Placement(V(0, 0, -18.85), App.Rotation())
add_polygon(sketch14, [(-5.75, -39.5), (-5.75, -41.75), (22.23358, -41.75), (22.23358, -39.5)])  # lines 0-3
sketch14.addConstraint(Sketcher.Constraint("Vertical", 0))
sketch14.addConstraint(Sketcher.Constraint("Horizontal", 1))
sketch14.addConstraint(Sketcher.Constraint("Vertical", 2))
sketch14.addConstraint(Sketcher.Constraint("Horizontal", 3))
sketch14.addConstraint(Sketcher.Constraint("DistanceY", 0, 2, 0, 1, Q("2.25 mm")))
sketch14.addConstraint(Sketcher.Constraint("DistanceY", 2, 2, -1, 1, Q("39.5 mm")))
sketch14.addConstraint(Sketcher.Constraint("DistanceX", 0, 2, -1, 1, Q("5.75 mm")))
sketch14.addConstraint(Sketcher.Constraint("DistanceX", 1, 1, 1, 2, Q("27.983581 mm")))
pad10 = body3.newObject("PartDesign::Pad", "Pad009")
pad10.Profile = sketch14
pad10.Length = 12.8
doc.recompute()

fillet2 = body3.newObject("PartDesign::Fillet", "Fillet001")
fillet2.Base = (pad10, edges_at(pad10, [(8.242, -39.5, -18.85), (8.242, -38.75, -18.85)]))
fillet2.Radius = 0.3

# Sketch on XY plane
sketch15 = body3.newObject("Sketcher::SketchObject", "Sketch014")
sketch15.AttachmentSupport = (doc.getObject("XY_Plane002"), [""])
sketch15.MapMode = "FlatFace"
sketch15.AttachmentOffset = App.Placement(V(0, 0, -19.952446), App.Rotation())
add_polygon(sketch15, [(22.23358, 11.25), (22.23358, -41.75), (-5.75, -41.75), (-5.75, 11.25)])  # lines 0-3
sketch15.addConstraint(Sketcher.Constraint("Vertical", 0))
sketch15.addConstraint(Sketcher.Constraint("Horizontal", 1))
sketch15.addConstraint(Sketcher.Constraint("Vertical", 2))
sketch15.addConstraint(Sketcher.Constraint("Horizontal", 3))
sketch15.addConstraint(Sketcher.Constraint("DistanceY", 0, 2, 0, 1, Q("53 mm")))
sketch15.addConstraint(Sketcher.Constraint("DistanceY", 0, 2, -1, 1, Q("41.75 mm")))
sketch15.addConstraint(Sketcher.Constraint("DistanceX", 1, 2, -1, 1, Q("5.75 mm")))
sketch15.addConstraint(Sketcher.Constraint("DistanceX", 1, 2, 1, 1, Q("27.983581 mm")))
pad11 = body3.newObject("PartDesign::Pad", "Pad010")
pad11.Profile = sketch15
pad11.Length = 3
pad11.Reversed = True

# Sketch on XY plane
sketch16 = body3.newObject("Sketcher::SketchObject", "Sketch015")
sketch16.AttachmentSupport = (doc.getObject("XY_Plane002"), [""])
sketch16.MapMode = "FlatFace"
sketch16.AttachmentOffset = App.Placement(V(0, 0, -22.952446), App.Rotation())
add_polygon(sketch16, [(17.5, 0), (17.5, -25), (0, -25), (0, 0)])  # lines 0-3
sketch16.addConstraint(Sketcher.Constraint("Vertical", 0))
sketch16.addConstraint(Sketcher.Constraint("Horizontal", 1))
sketch16.addConstraint(Sketcher.Constraint("Vertical", 2))
sketch16.addConstraint(Sketcher.Constraint("Horizontal", 3))
sketch16.addConstraint(Sketcher.Constraint("Coincident", 2, 2, -1, 1))
sketch16.addConstraint(Sketcher.Constraint("DistanceY", 0, 2, 0, 1, Q("25 mm")))
sketch16.addConstraint(Sketcher.Constraint("DistanceX", 1, 2, 1, 1, Q("17.5 mm")))
pocket5 = body3.newObject("PartDesign::Pocket", "Pocket004")
pocket5.Profile = sketch16
pocket5.Length = 4
pocket5.Reversed = True

# Sketch on XY plane
sketch17 = body3.newObject("Sketcher::SketchObject", "Sketch016")
sketch17.AttachmentSupport = (doc.getObject("XY_Plane002"), [""])
sketch17.MapMode = "FlatFace"
sketch17.AttachmentOffset = App.Placement(V(0, 0, -22.952446), App.Rotation())
sketch17.addGeometry(Part.Circle(V(16.05, -27.95, 0), V(0, 0, 1), 1), False)
sketch17.addGeometry(Part.Circle(V(0.467721, -27.95, 0), V(0, 0, 1), 1), False)
sketch17.addConstraint(Sketcher.Constraint("Equal", 0, 1))
sketch17.addConstraint(Sketcher.Constraint("Horizontal", 0, 3, 1, 3))
sketch17.addConstraint(Sketcher.Constraint("Diameter", 0, Q("2 mm")))
sketch17.addConstraint(Sketcher.Constraint("DistanceX", -1, 1, 0, 3, Q("16.05 mm")))
sketch17.addConstraint(Sketcher.Constraint("DistanceY", 0, 3, -1, 1, Q("27.95 mm")))
sketch17.addConstraint(Sketcher.Constraint("DistanceX", -1, 1, 1, 3, Q("0.467721 mm")))
pocket6 = body3.newObject("PartDesign::Pocket", "Pocket005")
pocket6.Profile = sketch17
pocket6.Length = 5
pocket6.Reversed = True

doc.recompute()
